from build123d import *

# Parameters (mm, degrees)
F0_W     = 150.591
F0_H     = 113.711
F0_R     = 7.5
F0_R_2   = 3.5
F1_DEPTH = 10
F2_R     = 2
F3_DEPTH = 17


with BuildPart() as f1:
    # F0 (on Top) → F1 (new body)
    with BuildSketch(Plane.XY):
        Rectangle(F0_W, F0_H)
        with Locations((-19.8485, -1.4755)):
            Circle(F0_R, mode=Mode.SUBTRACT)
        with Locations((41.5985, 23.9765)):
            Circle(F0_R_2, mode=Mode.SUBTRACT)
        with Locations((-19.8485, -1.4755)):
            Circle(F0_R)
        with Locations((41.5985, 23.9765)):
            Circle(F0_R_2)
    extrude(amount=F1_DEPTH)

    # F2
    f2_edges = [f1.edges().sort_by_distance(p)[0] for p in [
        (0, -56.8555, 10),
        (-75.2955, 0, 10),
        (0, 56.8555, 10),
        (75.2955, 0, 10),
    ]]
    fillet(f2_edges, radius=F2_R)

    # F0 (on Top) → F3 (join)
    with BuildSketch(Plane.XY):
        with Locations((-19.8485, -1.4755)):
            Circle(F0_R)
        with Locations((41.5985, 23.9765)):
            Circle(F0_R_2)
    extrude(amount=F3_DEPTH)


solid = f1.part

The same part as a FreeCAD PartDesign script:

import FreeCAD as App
import Part
import Sketcher
from FreeCAD import Vector
Q = App.Units.Quantity


def edges_at(feature, points):
    """Names of the edges that pass closest to the given points."""
    edges = feature.Shape.Edges
    near = lambda p: min(range(len(edges)), key=lambda i: edges[i].distToShape(Part.Vertex(*p))[0])
    return sorted({f"Edge{near(p) + 1}" for p in points})

doc = App.newDocument("Part")
params = doc.addObject("Spreadsheet::Sheet", "Params")
for row, (alias, value) in enumerate([
    ("pad1_length", "10 mm"),
    ("fillet_radius", "2 mm"),
    ("sketch2_diameter", "15 mm"),
    ("sketch2_diameter2", "7 mm"),
    ("pad2_length", "17 mm"),
], start=1):
    params.set(f"A{row}", alias)
    params.set(f"B{row}", "=" + value)
    params.setAlias(f"B{row}", alias)

body = doc.addObject("PartDesign::Body", "Body")

# Sketch on XY plane
sketch1 = body.newObject("Sketcher::SketchObject", "Sketch")
sketch1.AttachmentSupport = (doc.getObject("XY_Plane"), [""])
sketch1.MapMode = "FlatFace"
sketch1.addGeometry([
    Part.LineSegment(Vector(-75, 57, 0), Vector(-75, -57, 0)),
    Part.LineSegment(Vector(-75, -57, 0), Vector(75, -57, 0)),
    Part.LineSegment(Vector(75, -57, 0), Vector(75, 57, 0)),
    Part.LineSegment(Vector(75, 57, 0), Vector(-75, 57, 0)),
], False)
sketch1.addConstraint([
    Sketcher.Constraint("Coincident", 0, 2, 1, 1),
    Sketcher.Constraint("Coincident", 1, 2, 2, 1),
    Sketcher.Constraint("Coincident", 2, 2, 3, 1),
    Sketcher.Constraint("Coincident", 3, 2, 0, 1),
    Sketcher.Constraint("Vertical", 0),
    Sketcher.Constraint("Horizontal", 1),
    Sketcher.Constraint("Vertical", 2),
    Sketcher.Constraint("Horizontal", 3),
    Sketcher.Constraint("Symmetric", 0, 2, 2, 2, -1, 1),
    Sketcher.Constraint("DistanceX", 1, 1, 1, 2, Q("150.591 mm")),
    Sketcher.Constraint("DistanceY", 0, 2, 0, 1, Q("113.711 mm")),
])
pad1 = body.newObject("PartDesign::Pad", "Pad")
pad1.Profile = sketch1
pad1.setExpression("Length", "Params.pad1_length")
doc.recompute()

fillet = body.newObject("PartDesign::Fillet", "Fillet")
fillet.Base = (pad1, edges_at(pad1, [
    (0, -56.855, 10),
    (-75.296, 0, 10),
    (0, 56.855, 10),
    (75.296, 0, 10),
]))
fillet.setExpression("Radius", "Params.fillet_radius")

# Sketch on XY plane
sketch2 = body.newObject("Sketcher::SketchObject", "Sketch001")
sketch2.AttachmentSupport = (doc.getObject("XY_Plane"), [""])
sketch2.MapMode = "FlatFace"
sketch2.addGeometry([
    Part.Circle(Vector(-19.8, -1.5, 0), Vector(0, 0, 1), 7.5),
    Part.Circle(Vector(41.6, 24, 0), Vector(0, 0, 1), 3.5),
], False)
sketch2.addConstraint([
    Sketcher.Constraint("Diameter", 0, Q("15 mm")),
    Sketcher.Constraint("Diameter", 1, Q("7 mm")),
    Sketcher.Constraint("DistanceX", 0, 3, 1, 3, Q("61.447 mm")),
    Sketcher.Constraint("DistanceY", 0, 3, 1, 3, Q("25.452 mm")),
    Sketcher.Constraint("DistanceX", 0, 3, -1, 1, Q("19.8485 mm")),
    Sketcher.Constraint("DistanceY", 0, 3, -1, 1, Q("1.4755 mm")),
])
sketch2.setExpression("Constraints[0]", "Params.sketch2_diameter")
sketch2.setExpression("Constraints[1]", "Params.sketch2_diameter2")
pad2 = body.newObject("PartDesign::Pad", "Pad001")
pad2.Profile = sketch2
pad2.setExpression("Length", "Params.pad2_length")

doc.recompute()
